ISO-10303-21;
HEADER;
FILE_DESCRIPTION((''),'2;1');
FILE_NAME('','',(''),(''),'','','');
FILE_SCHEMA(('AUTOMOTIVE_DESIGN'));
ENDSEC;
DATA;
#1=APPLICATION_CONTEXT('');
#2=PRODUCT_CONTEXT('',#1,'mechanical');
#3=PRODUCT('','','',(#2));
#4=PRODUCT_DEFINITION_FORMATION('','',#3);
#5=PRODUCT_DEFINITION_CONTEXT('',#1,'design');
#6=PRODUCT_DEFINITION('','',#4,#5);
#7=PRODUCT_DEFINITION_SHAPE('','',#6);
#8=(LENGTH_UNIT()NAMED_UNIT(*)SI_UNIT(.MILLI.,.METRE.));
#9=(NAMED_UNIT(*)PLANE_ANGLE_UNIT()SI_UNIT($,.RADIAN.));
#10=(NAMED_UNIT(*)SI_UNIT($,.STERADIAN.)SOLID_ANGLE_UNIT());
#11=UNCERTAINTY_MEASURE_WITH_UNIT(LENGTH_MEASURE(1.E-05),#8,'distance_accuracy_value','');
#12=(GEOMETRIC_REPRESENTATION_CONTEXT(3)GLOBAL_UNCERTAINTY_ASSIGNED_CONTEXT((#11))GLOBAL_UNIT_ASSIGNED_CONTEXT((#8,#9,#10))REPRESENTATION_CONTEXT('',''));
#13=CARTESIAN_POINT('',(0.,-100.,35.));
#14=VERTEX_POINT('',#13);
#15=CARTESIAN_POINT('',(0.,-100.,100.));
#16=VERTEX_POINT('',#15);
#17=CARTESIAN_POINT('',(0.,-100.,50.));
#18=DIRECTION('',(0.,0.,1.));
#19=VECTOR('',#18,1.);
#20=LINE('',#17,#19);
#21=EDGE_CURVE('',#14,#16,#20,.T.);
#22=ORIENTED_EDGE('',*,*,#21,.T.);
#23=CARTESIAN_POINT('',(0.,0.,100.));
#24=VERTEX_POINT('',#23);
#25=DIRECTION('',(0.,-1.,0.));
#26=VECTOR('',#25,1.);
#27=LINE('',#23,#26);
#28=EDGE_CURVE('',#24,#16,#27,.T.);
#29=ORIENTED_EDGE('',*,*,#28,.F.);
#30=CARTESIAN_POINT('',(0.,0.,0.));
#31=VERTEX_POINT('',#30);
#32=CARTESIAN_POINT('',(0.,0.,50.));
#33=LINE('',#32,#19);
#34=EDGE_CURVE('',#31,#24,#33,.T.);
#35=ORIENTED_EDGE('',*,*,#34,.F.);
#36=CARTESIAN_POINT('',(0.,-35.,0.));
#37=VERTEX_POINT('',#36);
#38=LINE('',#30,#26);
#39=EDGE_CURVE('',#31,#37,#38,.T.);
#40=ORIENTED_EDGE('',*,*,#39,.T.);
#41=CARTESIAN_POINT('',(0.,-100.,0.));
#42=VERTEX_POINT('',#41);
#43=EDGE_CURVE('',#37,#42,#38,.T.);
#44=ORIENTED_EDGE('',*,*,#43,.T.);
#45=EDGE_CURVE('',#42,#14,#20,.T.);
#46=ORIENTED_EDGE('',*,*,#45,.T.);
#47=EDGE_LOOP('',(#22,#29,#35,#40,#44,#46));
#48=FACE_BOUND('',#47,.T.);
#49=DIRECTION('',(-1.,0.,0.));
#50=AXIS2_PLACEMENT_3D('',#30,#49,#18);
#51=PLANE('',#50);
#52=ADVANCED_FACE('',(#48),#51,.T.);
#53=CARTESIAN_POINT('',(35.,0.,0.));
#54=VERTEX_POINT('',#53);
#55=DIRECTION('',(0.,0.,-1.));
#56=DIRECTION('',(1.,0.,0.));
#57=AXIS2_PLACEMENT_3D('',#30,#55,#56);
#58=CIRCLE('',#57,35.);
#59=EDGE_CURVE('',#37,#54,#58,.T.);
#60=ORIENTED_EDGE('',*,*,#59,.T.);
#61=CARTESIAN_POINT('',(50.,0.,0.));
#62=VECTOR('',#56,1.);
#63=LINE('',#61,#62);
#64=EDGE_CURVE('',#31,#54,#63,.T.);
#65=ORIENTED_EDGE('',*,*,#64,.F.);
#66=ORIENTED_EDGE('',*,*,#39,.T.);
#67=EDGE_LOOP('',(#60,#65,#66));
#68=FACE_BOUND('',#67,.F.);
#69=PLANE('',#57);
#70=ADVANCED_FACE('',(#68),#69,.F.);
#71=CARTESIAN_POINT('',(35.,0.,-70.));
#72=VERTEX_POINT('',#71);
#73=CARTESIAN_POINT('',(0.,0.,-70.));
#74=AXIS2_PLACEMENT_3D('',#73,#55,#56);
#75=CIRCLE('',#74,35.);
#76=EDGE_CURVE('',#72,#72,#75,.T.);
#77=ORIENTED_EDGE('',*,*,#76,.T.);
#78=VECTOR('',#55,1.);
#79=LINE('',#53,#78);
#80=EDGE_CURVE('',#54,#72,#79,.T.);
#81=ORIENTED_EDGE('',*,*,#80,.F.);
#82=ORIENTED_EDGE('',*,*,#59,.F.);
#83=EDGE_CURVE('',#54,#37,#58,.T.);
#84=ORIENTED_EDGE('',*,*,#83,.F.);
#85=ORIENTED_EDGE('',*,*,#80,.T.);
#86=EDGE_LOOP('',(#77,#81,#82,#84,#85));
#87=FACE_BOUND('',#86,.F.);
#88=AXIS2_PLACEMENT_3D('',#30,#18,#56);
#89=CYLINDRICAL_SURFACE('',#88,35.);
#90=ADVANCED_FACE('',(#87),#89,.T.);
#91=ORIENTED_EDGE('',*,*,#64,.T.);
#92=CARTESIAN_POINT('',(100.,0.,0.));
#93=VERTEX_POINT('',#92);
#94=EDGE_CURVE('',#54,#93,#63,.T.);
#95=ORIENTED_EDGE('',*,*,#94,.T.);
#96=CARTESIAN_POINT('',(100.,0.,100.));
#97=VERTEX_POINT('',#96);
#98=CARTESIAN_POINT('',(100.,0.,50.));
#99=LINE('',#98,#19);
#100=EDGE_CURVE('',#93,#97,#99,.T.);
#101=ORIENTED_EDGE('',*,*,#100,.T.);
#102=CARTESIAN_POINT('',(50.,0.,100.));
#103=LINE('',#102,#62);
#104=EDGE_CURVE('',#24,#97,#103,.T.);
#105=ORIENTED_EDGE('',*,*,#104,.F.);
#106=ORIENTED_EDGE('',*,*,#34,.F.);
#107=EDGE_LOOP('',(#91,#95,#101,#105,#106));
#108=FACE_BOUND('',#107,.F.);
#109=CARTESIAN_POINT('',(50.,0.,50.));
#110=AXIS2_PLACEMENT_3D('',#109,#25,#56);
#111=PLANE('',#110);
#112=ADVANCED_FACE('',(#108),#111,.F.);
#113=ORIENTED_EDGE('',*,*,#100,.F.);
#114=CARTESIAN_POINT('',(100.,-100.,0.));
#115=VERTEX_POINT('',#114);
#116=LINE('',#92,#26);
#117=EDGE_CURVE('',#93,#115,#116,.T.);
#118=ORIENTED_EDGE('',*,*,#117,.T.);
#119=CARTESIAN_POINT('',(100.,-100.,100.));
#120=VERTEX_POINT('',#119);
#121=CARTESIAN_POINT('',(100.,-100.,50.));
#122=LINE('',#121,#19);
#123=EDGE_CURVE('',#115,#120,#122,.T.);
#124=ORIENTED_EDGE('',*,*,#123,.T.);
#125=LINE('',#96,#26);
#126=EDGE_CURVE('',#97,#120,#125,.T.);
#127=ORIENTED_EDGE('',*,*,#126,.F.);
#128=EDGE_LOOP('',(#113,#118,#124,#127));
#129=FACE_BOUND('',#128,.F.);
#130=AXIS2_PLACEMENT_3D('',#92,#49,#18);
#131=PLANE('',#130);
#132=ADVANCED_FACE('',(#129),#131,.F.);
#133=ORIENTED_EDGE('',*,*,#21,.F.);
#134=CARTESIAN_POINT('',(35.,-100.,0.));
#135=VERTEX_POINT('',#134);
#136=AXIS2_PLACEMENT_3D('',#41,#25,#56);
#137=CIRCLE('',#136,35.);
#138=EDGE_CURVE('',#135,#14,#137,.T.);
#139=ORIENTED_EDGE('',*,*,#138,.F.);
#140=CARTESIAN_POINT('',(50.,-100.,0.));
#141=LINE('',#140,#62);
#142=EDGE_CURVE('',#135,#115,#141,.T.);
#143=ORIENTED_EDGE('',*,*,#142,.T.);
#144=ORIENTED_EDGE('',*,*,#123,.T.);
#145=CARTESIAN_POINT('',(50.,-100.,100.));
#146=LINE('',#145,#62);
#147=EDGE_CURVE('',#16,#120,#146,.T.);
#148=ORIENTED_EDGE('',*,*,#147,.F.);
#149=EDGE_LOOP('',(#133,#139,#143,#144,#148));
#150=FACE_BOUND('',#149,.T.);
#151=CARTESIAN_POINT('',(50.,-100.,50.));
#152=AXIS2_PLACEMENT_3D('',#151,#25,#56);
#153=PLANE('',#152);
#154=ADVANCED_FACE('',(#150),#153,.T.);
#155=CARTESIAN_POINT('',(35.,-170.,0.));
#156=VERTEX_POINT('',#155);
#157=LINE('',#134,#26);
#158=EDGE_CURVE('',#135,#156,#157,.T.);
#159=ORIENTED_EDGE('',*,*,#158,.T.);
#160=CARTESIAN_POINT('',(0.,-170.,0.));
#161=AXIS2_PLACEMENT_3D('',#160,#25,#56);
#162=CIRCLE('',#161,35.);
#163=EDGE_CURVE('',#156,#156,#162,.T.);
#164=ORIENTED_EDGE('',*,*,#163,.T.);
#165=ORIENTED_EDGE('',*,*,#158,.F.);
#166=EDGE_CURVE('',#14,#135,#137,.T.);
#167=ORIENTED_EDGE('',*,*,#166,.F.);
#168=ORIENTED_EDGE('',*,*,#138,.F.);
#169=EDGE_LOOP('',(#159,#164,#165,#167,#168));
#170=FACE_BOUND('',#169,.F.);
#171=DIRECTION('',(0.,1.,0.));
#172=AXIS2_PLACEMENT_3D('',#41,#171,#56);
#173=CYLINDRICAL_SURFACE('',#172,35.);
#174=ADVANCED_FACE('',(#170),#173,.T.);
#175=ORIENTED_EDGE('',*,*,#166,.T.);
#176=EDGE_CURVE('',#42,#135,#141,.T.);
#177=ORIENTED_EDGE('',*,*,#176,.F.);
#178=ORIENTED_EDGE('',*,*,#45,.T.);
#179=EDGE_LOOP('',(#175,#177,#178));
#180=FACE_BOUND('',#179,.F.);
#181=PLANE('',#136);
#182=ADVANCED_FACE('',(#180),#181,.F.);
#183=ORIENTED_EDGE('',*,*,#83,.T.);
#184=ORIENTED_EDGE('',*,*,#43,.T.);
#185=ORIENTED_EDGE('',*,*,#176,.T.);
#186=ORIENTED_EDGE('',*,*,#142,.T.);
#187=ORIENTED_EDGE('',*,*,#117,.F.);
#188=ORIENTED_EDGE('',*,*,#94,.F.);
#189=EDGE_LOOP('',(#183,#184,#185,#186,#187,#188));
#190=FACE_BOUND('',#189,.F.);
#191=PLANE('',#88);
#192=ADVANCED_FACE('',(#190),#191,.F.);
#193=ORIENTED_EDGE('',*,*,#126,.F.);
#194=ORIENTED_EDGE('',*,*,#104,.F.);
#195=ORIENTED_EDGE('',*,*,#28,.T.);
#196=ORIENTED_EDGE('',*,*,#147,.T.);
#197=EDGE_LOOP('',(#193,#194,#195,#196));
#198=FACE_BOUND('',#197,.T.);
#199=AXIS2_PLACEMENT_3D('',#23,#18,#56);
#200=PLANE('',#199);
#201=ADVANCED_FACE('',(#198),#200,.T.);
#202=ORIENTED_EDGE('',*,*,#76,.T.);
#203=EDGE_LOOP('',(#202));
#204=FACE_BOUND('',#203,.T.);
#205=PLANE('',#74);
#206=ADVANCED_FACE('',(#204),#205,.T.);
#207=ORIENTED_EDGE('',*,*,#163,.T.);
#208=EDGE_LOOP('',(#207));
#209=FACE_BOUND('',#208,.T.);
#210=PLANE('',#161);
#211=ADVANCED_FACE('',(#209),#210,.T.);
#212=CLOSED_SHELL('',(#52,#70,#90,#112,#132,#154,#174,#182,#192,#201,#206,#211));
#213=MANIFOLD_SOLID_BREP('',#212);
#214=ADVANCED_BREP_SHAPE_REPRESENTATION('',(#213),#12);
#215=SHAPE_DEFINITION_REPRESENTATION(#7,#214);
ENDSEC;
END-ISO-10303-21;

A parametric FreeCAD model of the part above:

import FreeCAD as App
import Part
import Sketcher

V = App.Vector

doc = App.newDocument("Part")
params = doc.addObject("Spreadsheet::Sheet", "Params")
for row, (alias, value) in enumerate([
    ("sketch1_width", "100 mm"),
    ("pad1_length", "100 mm"),
    ("sketch2_diameter", "70 mm"),
    ("pad2_length", "70 mm"),
    ("sketch3_diameter", "70 mm"),
    ("pad3_length", "70 mm"),
], start=1):
    params.set(f"A{row}", alias)
    params.set(f"B{row}", "=" + value)
    params.setAlias(f"B{row}", alias)

body = doc.addObject("PartDesign::Body", "Body")

# Sketch on XZ plane
sketch1 = body.newObject("Sketcher::SketchObject", "Sketch")
sketch1.AttachmentSupport = (doc.getObject("XZ_Plane"), [""])
sketch1.MapMode = "FlatFace"
sketch1.addGeometry([
    Part.LineSegment(V(0, 100, 0), V(0, 0, 0)),
    Part.LineSegment(V(0, 0, 0), V(100, 0, 0)),
    Part.LineSegment(V(100, 0, 0), V(100, 100, 0)),
    Part.LineSegment(V(100, 100, 0), V(0, 100, 0)),
], False)
sketch1.addConstraint([
    Sketcher.Constraint("Coincident", 0, 2, 1, 1),
    Sketcher.Constraint("Coincident", 1, 2, 2, 1),
    Sketcher.Constraint("Coincident", 2, 2, 3, 1),
    Sketcher.Constraint("Coincident", 3, 2, 0, 1),
    Sketcher.Constraint("Vertical", 0),
    Sketcher.Constraint("Horizontal", 1),
    Sketcher.Constraint("Vertical", 2),
    Sketcher.Constraint("Horizontal", 3),
    Sketcher.Constraint("Coincident", 0, 2, -1, 1),
    Sketcher.Constraint("Equal", 3, 0),
    Sketcher.Constraint("DistanceX", 1, 1, 1, 2, 100.0),
])
sketch1.setExpression("Constraints[10]", "Params.sketch1_width")
pad1 = body.newObject("PartDesign::Pad", "Pad")
pad1.Profile = sketch1
pad1.setExpression("Length", "Params.pad1_length")

# Sketch on XY plane
sketch2 = body.newObject("Sketcher::SketchObject", "Sketch001")
sketch2.AttachmentSupport = (doc.getObject("XY_Plane"), [""])
sketch2.MapMode = "FlatFace"
sketch2.addGeometry(Part.Circle(V(0, 0, 0), V(0, 0, 1), 35), False)
sketch2.addConstraint([
    Sketcher.Constraint("Coincident", 0, 3, -1, 1),
    Sketcher.Constraint("Diameter", 0, 70.0),
])
sketch2.setExpression("Constraints[1]", "Params.sketch2_diameter")
pad2 = body.newObject("PartDesign::Pad", "Pad001")
pad2.Profile = sketch2
pad2.setExpression("Length", "Params.pad2_length")
pad2.Reversed = True

# Sketch on XZ plane
sketch3 = body.newObject("Sketcher::SketchObject", "Sketch002")
sketch3.AttachmentSupport = (doc.getObject("XZ_Plane"), [""])
sketch3.MapMode = "FlatFace"
sketch3.AttachmentOffset = App.Placement(V(0, 0, 100), App.Rotation())
sketch3.addGeometry(Part.Circle(V(0, 0, 0), V(0, 0, 1), 35), False)
sketch3.addConstraint([
    Sketcher.Constraint("Coincident", 0, 3, -1, 1),
    Sketcher.Constraint("Diameter", 0, 70.0),
])
sketch3.setExpression("Constraints[1]", "Params.sketch3_diameter")
pad3 = body.newObject("PartDesign::Pad", "Pad002")
pad3.Profile = sketch3
pad3.setExpression("Length", "Params.pad3_length")

doc.recompute()
